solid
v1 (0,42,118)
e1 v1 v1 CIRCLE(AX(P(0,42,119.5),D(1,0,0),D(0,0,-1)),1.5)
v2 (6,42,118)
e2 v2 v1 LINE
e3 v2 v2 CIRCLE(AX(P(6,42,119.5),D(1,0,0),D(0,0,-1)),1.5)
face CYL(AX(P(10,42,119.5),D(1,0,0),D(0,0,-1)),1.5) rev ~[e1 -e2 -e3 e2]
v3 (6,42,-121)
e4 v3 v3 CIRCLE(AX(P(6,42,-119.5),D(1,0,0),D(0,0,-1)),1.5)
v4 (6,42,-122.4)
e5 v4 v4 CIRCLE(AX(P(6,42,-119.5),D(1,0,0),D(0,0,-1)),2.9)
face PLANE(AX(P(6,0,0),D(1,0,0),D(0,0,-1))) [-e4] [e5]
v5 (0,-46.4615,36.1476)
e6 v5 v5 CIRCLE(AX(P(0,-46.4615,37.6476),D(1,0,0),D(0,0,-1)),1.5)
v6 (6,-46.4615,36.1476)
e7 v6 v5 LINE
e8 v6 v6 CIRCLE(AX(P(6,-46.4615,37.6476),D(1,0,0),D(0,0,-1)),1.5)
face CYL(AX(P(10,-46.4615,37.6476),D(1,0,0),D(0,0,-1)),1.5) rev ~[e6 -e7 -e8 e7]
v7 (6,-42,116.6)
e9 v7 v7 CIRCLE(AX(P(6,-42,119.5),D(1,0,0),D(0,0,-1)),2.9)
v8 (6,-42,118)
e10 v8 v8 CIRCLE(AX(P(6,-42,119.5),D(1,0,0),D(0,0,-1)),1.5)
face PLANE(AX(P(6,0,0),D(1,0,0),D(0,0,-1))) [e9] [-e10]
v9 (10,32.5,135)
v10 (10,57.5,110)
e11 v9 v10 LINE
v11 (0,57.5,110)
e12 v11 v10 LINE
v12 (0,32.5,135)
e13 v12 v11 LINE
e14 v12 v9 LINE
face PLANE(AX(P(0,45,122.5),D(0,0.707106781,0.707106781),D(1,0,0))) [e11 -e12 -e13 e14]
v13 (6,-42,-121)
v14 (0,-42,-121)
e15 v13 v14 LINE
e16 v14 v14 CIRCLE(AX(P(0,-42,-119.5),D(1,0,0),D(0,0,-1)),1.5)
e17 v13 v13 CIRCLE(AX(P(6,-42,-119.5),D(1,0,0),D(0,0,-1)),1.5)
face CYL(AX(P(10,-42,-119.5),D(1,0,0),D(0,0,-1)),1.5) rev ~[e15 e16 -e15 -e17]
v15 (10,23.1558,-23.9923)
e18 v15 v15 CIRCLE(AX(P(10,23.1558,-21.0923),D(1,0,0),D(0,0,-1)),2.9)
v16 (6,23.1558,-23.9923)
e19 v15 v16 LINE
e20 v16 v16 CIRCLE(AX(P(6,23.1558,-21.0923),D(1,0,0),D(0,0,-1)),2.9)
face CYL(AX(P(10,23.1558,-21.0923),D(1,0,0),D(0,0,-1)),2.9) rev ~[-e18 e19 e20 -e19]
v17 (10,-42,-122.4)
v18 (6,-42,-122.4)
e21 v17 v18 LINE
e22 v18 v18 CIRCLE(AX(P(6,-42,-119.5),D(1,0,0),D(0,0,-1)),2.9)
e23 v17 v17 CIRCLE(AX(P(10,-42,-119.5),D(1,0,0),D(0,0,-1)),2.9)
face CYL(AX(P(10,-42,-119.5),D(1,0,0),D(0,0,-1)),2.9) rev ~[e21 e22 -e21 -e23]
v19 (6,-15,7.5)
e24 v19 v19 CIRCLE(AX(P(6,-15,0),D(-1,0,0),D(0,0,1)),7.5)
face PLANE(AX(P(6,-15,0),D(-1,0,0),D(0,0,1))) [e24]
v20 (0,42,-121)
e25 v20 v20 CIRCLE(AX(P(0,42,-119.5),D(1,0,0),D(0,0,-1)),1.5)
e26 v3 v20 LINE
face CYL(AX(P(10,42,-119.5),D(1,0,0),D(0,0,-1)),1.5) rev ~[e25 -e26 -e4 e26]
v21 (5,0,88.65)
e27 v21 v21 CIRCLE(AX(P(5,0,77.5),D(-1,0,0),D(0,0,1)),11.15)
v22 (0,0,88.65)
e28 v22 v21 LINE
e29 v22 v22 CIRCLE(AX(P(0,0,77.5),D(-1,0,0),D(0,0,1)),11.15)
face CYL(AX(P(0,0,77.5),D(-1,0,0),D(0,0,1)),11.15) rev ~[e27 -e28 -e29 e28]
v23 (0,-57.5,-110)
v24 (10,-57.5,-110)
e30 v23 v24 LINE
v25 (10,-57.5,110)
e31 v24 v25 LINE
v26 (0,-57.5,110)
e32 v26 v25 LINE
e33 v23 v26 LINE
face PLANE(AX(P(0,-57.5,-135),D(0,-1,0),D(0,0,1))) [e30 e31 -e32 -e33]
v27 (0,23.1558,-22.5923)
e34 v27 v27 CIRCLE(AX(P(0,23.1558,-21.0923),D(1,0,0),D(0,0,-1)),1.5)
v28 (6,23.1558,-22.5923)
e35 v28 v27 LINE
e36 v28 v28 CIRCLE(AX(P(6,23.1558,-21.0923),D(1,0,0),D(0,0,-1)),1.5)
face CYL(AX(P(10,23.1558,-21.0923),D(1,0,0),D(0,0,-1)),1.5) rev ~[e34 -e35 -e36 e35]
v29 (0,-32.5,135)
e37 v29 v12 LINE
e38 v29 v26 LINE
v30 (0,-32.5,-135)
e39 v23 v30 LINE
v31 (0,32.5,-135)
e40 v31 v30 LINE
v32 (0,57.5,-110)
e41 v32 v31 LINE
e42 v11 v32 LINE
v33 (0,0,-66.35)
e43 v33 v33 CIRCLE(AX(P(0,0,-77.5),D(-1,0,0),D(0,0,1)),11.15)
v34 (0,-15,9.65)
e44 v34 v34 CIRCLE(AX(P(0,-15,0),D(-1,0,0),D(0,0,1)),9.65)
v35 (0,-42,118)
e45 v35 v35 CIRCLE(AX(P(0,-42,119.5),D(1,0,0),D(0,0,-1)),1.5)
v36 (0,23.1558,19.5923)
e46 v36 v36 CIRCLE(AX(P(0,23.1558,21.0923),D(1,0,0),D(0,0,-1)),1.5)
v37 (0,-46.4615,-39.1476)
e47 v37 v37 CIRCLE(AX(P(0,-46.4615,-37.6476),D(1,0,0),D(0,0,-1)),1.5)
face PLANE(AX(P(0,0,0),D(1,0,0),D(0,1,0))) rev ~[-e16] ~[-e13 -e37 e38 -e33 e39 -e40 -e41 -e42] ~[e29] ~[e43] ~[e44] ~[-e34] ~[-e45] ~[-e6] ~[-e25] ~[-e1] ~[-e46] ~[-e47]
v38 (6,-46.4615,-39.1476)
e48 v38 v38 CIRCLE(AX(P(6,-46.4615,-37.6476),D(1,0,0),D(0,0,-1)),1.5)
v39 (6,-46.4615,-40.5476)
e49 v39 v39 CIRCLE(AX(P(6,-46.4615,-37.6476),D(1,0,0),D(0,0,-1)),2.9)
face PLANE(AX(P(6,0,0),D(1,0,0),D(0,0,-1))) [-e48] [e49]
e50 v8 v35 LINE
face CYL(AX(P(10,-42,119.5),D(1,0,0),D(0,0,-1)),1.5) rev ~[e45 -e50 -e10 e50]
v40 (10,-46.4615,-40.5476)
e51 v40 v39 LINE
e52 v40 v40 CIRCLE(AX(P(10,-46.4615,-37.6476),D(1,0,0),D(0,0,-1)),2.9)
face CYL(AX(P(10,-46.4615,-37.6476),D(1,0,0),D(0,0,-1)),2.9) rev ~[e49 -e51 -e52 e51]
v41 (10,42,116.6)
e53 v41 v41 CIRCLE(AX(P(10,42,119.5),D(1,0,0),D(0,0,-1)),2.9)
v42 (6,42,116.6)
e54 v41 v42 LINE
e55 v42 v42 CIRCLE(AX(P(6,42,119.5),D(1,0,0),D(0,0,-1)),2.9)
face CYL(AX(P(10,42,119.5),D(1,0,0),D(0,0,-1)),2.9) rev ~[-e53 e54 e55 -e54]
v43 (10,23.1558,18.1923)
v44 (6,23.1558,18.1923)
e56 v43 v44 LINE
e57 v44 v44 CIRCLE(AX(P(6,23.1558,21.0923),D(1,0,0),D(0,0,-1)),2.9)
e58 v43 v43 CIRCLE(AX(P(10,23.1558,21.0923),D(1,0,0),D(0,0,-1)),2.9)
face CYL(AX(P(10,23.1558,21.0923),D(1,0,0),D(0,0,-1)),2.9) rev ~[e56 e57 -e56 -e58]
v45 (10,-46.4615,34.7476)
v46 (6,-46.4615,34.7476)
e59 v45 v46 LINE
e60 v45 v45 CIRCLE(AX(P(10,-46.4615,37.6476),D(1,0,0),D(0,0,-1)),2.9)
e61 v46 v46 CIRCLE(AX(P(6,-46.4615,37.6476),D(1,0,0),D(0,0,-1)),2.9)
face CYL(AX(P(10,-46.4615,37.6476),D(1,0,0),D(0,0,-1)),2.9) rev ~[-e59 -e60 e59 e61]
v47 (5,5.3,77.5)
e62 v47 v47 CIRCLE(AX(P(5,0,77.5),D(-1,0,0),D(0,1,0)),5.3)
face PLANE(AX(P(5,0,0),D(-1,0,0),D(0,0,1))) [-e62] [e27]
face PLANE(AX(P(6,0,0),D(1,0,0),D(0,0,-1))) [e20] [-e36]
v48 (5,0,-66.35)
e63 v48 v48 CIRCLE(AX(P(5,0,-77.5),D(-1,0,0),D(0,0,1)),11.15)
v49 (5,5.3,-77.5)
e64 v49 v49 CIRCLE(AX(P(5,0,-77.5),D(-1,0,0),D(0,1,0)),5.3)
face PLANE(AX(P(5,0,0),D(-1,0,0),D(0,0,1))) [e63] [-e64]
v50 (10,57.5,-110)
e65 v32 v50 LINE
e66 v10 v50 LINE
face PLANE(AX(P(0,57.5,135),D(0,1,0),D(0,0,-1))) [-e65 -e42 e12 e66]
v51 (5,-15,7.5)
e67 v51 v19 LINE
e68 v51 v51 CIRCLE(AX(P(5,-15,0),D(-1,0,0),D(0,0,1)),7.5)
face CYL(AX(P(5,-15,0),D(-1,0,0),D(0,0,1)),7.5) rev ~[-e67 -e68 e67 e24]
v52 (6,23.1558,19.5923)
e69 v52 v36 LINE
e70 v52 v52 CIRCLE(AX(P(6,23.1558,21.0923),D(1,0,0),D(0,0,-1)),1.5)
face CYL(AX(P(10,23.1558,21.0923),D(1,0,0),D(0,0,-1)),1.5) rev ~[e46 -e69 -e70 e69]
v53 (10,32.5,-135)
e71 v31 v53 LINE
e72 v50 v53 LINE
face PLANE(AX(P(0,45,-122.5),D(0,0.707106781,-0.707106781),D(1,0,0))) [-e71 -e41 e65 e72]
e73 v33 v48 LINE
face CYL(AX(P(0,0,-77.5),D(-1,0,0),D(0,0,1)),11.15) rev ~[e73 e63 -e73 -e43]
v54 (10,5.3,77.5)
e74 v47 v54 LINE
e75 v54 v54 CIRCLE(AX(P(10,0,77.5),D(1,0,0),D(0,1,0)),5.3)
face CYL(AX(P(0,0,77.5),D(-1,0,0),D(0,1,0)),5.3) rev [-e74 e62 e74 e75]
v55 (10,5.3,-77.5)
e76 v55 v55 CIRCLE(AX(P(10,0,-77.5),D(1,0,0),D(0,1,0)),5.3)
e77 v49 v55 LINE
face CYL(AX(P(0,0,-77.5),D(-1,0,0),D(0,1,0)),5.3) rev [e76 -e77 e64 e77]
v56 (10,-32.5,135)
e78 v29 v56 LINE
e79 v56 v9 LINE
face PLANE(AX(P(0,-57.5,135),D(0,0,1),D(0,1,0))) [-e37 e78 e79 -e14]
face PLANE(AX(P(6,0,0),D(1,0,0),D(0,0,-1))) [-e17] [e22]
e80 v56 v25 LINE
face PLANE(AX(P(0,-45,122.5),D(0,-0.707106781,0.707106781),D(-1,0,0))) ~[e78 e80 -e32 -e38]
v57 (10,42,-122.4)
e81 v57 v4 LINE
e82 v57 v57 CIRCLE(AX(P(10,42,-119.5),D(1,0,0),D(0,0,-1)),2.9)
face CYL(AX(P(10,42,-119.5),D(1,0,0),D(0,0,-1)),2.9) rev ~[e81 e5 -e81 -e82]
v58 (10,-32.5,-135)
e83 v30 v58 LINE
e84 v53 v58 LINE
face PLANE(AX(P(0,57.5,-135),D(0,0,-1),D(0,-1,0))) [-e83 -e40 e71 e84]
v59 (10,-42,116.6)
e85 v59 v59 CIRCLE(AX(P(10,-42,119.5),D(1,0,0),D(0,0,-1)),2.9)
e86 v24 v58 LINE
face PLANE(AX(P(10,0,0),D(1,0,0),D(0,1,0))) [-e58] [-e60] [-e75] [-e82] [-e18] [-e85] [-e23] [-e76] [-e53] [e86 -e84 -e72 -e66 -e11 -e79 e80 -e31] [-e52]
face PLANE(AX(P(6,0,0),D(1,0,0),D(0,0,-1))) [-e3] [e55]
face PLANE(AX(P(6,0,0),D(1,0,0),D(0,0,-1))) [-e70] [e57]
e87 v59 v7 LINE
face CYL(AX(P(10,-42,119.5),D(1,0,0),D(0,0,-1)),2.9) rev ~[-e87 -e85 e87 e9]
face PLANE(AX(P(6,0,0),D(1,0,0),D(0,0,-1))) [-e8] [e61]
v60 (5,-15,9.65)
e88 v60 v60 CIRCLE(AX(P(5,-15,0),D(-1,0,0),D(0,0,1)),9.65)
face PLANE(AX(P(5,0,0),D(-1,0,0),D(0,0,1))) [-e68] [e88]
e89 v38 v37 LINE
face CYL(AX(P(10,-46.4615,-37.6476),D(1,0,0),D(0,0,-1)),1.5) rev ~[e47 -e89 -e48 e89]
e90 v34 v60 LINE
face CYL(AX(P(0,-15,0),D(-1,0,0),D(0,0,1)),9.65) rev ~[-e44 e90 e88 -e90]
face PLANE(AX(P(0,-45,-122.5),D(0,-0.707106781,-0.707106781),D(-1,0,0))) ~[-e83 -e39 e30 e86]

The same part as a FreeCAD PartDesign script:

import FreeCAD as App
import Part
import Sketcher

V = App.Vector


def edges_at(feature, points):
    """Names of the edges that pass closest to the given points."""
    edges = feature.Shape.Edges
    near = lambda p: min(range(len(edges)), key=lambda i: edges[i].distToShape(Part.Vertex(*p))[0])
    return sorted({f"Edge{near(p) + 1}" for p in points})


def add_polygon(sketch, points):
    """Adds a closed chain of lines whose ends are joined by coincident constraints."""
    first, n = sketch.GeometryCount, len(points)
    for a, b in zip(points, points[1:] + points[:1]):
        sketch.addGeometry(Part.LineSegment(App.Vector(*a, 0), App.Vector(*b, 0)), False)
    for i in range(n):
        sketch.addConstraint(Sketcher.Constraint("Coincident", first + i, 2, first + (i + 1) % n, 1))

doc = App.newDocument("Part")
body = doc.addObject("PartDesign::Body", "Body")

# Sketch on YZ plane
sketch1 = body.newObject("Sketcher::SketchObject", "Sketch")
sketch1.AttachmentSupport = (doc.getObject("YZ_Plane"), [""])
sketch1.MapMode = "FlatFace"
add_polygon(sketch1, [(58, 135), (-58, 135), (-58, -135), (58, -135)])  # lines 0-3
sketch1.addGeometry(Part.Circle(V(0, 78, 0), V(0, 0, 1), 5), False)  # 4
sketch1.addGeometry(Part.Circle(V(0, -78, 0), V(0, 0, 1), 5), False)  # 5
sketch1.addConstraint([
    Sketcher.Constraint("Horizontal", 0),
    Sketcher.Constraint("Vertical", 1),
    Sketcher.Constraint("Horizontal", 2),
    Sketcher.Constraint("Vertical", 3),
    Sketcher.Constraint("Equal", 4, 5),
    Sketcher.Constraint("Symmetric", 4, 3, 5, 3, -1, 1),
    Sketcher.Constraint("Symmetric", 0, 2, 2, 2, -1, 1),
    Sketcher.Constraint("PointOnObject", 4, 3, -2),
    Sketcher.Constraint("Diameter", 4, 10.6),
    Sketcher.Constraint("DistanceX", 0, 2, 0, 1, 115.0),
    Sketcher.Constraint("DistanceY", 1, 2, 1, 1, 270.0),
    Sketcher.Constraint("DistanceY", 5, 3, 4, 3, 155.0),
])
pad1 = body.newObject("PartDesign::Pad", "Pad")
pad1.Profile = sketch1
pad1.Length = 10
doc.recompute()

chamfer = body.newObject("PartDesign::Chamfer", "Chamfer")
chamfer.Base = (pad1, edges_at(pad1, [
    (5, 57.5, -135),
    (5, -57.5, -135),
    (5, -57.5, 135),
    (5, 57.5, 135),
]))
chamfer.Size = 25

# Sketch on YZ plane
sketch2 = body.newObject("Sketcher::SketchObject", "Sketch001")
sketch2.AttachmentSupport = (doc.getObject("YZ_Plane"), [""])
sketch2.MapMode = "FlatFace"
sketch2.addGeometry([
    Part.Circle(V(0, -78, 0), V(0, 0, 1), 11),
    Part.Circle(V(0, 78, 0), V(0, 0, 1), 11),
], False)
sketch2.addConstraint([
    Sketcher.Constraint("Equal", 0, 1),
    Sketcher.Constraint("Symmetric", 0, 3, 1, 3, -1, 1),
    Sketcher.Constraint("PointOnObject", 0, 3, -2),
    Sketcher.Constraint("Diameter", 0, 22.3),
    Sketcher.Constraint("DistanceY", 0, 3, 1, 3, 155.0),
])
pocket1 = body.newObject("PartDesign::Pocket", "Pocket")
pocket1.Profile = sketch2
pocket1.Length = 5
pocket1.Reversed = True

# Sketch on YZ plane
sketch3 = body.newObject("Sketcher::SketchObject", "Sketch002")
sketch3.AttachmentSupport = (doc.getObject("YZ_Plane"), [""])
sketch3.MapMode = "FlatFace"
sketch3.addGeometry(Part.Circle(V(-15, 0, 0), V(0, 0, 1), 10), False)
sketch3.addConstraint([
    Sketcher.Constraint("PointOnObject", 0, 3, -1),
    Sketcher.Constraint("Diameter", 0, 19.3),
    Sketcher.Constraint("DistanceX", 0, 3, -1, 1, 15.0),
])
pocket2 = body.newObject("PartDesign::Pocket", "Pocket001")
pocket2.Profile = sketch3
pocket2.Length = 5
pocket2.Reversed = True

# Sketch on YZ plane
sketch4 = body.newObject("Sketcher::SketchObject", "Sketch003")
sketch4.AttachmentSupport = (doc.getObject("YZ_Plane"), [""])
sketch4.MapMode = "FlatFace"
sketch4.AttachmentOffset = App.Placement(V(0, 0, 5), App.Rotation())
sketch4.addGeometry(Part.Circle(V(-15, 0, 0), V(0, 0, 1), 8), False)
sketch4.addConstraint([
    Sketcher.Constraint("PointOnObject", 0, 3, -1),
    Sketcher.Constraint("Diameter", 0, 15.0),
    Sketcher.Constraint("DistanceX", 0, 3, -1, 1, 15.0),
])
pocket3 = body.newObject("PartDesign::Pocket", "Pocket002")
pocket3.Profile = sketch4
pocket3.Length = 1
pocket3.Reversed = True

# Sketch on YZ plane
sketch5 = body.newObject("Sketcher::SketchObject", "Sketch004")
sketch5.AttachmentSupport = (doc.getObject("YZ_Plane"), [""])
sketch5.MapMode = "FlatFace"
sketch5.AttachmentOffset = App.Placement(V(0, 0, 10), App.Rotation())
sketch5.addGeometry([
    Part.Circle(V(42, 119.5, 0), V(0, 0, 1), 1.5),  # 0
    Part.Circle(V(-42, 119.5, 0), V(0, 0, 1), 1.5),  # 1
    Part.Circle(V(-46.5, 37.6, 0), V(0, 0, 1), 1.5),  # 2
    Part.Circle(V(-46.5, -37.6, 0), V(0, 0, 1), 1.5),  # 3
    Part.Circle(V(23.2, 21.1, 0), V(0, 0, 1), 1.5),  # 4
    Part.Circle(V(23.2, -21.1, 0), V(0, 0, 1), 1.5),  # 5
    Part.Circle(V(-42, -119.5, 0), V(0, 0, 1), 1.5),  # 6
    Part.Circle(V(42, -119.5, 0), V(0, 0, 1), 1.5),  # 7
], False)
sketch5.addConstraint([
    Sketcher.Constraint("Equal", 0, 1),
    Sketcher.Constraint("Equal", 1, 2),
    Sketcher.Constraint("Equal", 2, 3),
    Sketcher.Constraint("Equal", 3, 4),
    Sketcher.Constraint("Equal", 4, 5),
    Sketcher.Constraint("Equal", 5, 6),
    Sketcher.Constraint("Equal", 6, 7),
    Sketcher.Constraint("Symmetric", 0, 3, 6, 3, -1, 1),
    Sketcher.Constraint("Symmetric", 1, 3, 7, 3, -1, 1),
    Sketcher.Constraint("Symmetric", 0, 3, 1, 3, -2),
    Sketcher.Constraint("Symmetric", 2, 3, 3, 3, -1),
    Sketcher.Constraint("Symmetric", 4, 3, 5, 3, -1),
    Sketcher.Constraint("Diameter", 0, 3.0),
    Sketcher.Constraint("DistanceX", -1, 1, 0, 3, 42.0),
    Sketcher.Constraint("DistanceY", 6, 3, 1, 3, 239.0),
    Sketcher.Constraint("DistanceY", 3, 3, 4, 3, 58.74),
    Sketcher.Constraint("DistanceX", 2, 3, -1, 1, 46.4615),
    Sketcher.Constraint("DistanceY", -1, 1, 2, 3, 37.6476),
    Sketcher.Constraint("DistanceX", -1, 1, 4, 3, 23.1558),
])
pocket4 = body.newObject("PartDesign::Pocket", "Pocket003")
pocket4.Profile = sketch5
pocket4.Type = "ThroughAll"

# Sketch on YZ plane
sketch6 = body.newObject("Sketcher::SketchObject", "Sketch005")
sketch6.AttachmentSupport = (doc.getObject("YZ_Plane"), [""])
sketch6.MapMode = "FlatFace"
sketch6.AttachmentOffset = App.Placement(V(0, 0, 10), App.Rotation())
sketch6.addGeometry([
    Part.Circle(V(23.2, 21.1, 0), V(0, 0, 1), 2.9),  # 0
    Part.Circle(V(-42, -119.5, 0), V(0, 0, 1), 2.9),  # 1
    Part.Circle(V(-42, 119.5, 0), V(0, 0, 1), 2.9),  # 2
    Part.Circle(V(-46.5, -37.6, 0), V(0, 0, 1), 2.9),  # 3
    Part.Circle(V(-46.5, 37.6, 0), V(0, 0, 1), 2.9),  # 4
    Part.Circle(V(42, 119.5, 0), V(0, 0, 1), 2.9),  # 5
    Part.Circle(V(23.2, -21.1, 0), V(0, 0, 1), 2.9),  # 6
    Part.Circle(V(42, -119.5, 0), V(0, 0, 1), 2.9),  # 7
], False)
sketch6.addConstraint([
    Sketcher.Constraint("Equal", 0, 1),
    Sketcher.Constraint("Equal", 1, 2),
    Sketcher.Constraint("Equal", 2, 3),
    Sketcher.Constraint("Equal", 3, 4),
    Sketcher.Constraint("Equal", 4, 5),
    Sketcher.Constraint("Equal", 5, 6),
    Sketcher.Constraint("Equal", 6, 7),
    Sketcher.Constraint("Symmetric", 1, 3, 5, 3, -1, 1),
    Sketcher.Constraint("Symmetric", 2, 3, 7, 3, -1, 1),
    Sketcher.Constraint("Symmetric", 2, 3, 5, 3, -2),
    Sketcher.Constraint("Symmetric", 3, 3, 4, 3, -1),
    Sketcher.Constraint("Symmetric", 0, 3, 6, 3, -1),
    Sketcher.Constraint("Diameter", 0, 5.8),
    Sketcher.Constraint("DistanceX", 1, 3, -1, 1, 42.0),
    Sketcher.Constraint("DistanceY", 1, 3, 2, 3, 239.0),
    Sketcher.Constraint("DistanceY", 3, 3, 0, 3, 58.74),
    Sketcher.Constraint("DistanceX", -1, 1, 0, 3, 23.1558),
    Sketcher.Constraint("DistanceY", -1, 1, 0, 3, 21.0923),
    Sketcher.Constraint("DistanceX", 3, 3, -1, 1, 46.4615),
])
pocket5 = body.newObject("PartDesign::Pocket", "Pocket004")
pocket5.Profile = sketch6
pocket5.Length = 4

doc.recompute()
